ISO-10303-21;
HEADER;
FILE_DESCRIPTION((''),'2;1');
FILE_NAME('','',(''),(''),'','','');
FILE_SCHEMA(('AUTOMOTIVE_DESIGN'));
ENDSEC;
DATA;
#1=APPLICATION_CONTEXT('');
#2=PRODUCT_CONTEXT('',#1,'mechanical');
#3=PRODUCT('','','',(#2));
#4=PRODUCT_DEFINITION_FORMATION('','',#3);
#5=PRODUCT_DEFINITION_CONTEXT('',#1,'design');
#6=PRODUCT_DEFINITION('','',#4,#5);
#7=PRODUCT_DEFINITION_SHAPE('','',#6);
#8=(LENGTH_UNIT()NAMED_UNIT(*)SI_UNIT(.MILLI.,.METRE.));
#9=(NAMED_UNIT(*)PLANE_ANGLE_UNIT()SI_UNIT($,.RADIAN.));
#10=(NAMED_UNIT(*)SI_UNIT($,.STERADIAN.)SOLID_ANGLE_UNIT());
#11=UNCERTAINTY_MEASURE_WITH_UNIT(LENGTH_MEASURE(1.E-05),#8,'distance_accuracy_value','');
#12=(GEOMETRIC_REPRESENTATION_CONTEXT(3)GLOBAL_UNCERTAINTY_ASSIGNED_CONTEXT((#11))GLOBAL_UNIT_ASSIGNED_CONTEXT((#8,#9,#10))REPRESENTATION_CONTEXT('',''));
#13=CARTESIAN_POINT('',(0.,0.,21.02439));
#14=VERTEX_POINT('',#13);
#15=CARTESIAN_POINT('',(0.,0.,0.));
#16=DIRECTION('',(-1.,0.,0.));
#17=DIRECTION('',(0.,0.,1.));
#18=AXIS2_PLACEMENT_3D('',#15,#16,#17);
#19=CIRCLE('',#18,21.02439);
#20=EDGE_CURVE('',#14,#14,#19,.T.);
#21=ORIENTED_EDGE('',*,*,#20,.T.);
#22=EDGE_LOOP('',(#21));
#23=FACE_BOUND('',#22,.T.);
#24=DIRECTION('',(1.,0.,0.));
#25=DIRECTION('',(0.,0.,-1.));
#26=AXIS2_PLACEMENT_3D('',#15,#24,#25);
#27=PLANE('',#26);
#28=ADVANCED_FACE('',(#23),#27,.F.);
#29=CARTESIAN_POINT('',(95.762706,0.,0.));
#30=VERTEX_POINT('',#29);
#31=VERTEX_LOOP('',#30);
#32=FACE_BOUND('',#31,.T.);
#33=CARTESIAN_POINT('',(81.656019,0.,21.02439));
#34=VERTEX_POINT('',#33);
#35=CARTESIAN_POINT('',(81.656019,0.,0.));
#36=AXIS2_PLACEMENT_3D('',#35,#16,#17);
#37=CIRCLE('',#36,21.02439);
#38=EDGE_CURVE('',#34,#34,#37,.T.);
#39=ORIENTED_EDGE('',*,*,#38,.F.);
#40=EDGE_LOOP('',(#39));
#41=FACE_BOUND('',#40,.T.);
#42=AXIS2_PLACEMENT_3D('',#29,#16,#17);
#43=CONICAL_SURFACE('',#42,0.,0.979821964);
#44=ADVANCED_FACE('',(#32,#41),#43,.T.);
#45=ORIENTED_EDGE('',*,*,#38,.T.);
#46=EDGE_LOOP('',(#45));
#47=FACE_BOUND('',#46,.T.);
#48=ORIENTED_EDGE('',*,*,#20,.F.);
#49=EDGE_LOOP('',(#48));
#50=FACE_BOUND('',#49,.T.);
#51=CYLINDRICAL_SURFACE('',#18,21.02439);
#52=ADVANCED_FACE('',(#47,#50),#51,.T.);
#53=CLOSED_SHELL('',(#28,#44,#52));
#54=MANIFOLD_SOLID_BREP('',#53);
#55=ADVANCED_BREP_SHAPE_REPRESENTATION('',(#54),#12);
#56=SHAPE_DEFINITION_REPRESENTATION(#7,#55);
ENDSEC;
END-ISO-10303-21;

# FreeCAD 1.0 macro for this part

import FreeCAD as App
import Part
import Sketcher


def add_polygon(sketch, points):
    """Adds a closed chain of lines whose ends are joined by coincident constraints."""
    first, n = sketch.GeometryCount, len(points)
    for a, b in zip(points, points[1:] + points[:1]):
        sketch.addGeometry(Part.LineSegment(App.Vector(*a, 0), App.Vector(*b, 0)), False)
    for i in range(n):
        sketch.addConstraint(Sketcher.Constraint("Coincident", first + i, 2, first + (i + 1) % n, 1))

doc = App.newDocument("Part")
params = doc.addObject("Spreadsheet::Sheet", "Params")
for row, (alias, value) in enumerate([
    ("revolution_angle", "360 deg"),
], start=1):
    params.set(f"A{row}", alias)
    params.set(f"B{row}", "=" + value)
    params.setAlias(f"B{row}", alias)

body = doc.addObject("PartDesign::Body", "Body")

# Sketch on XZ plane
sketch1 = body.newObject("Sketcher::SketchObject", "Sketch")
sketch1.AttachmentSupport = (doc.getObject("XZ_Plane"), [""])
sketch1.MapMode = "FlatFace"
add_polygon(sketch1, [(0, -21), (0, 0), (96, 0), (82, -21)])  # lines 0-3
sketch1.addConstraint([
    Sketcher.Constraint("Vertical", 0),
    Sketcher.Constraint("Horizontal", 1),
    Sketcher.Constraint("Horizontal", 3),
    Sketcher.Constraint("Coincident", 0, 2, -1, 1),
    Sketcher.Constraint("DistanceX", 3, 2, 3, 1, 81.656019),
    Sketcher.Constraint("DistanceY", 0, 1, 0, 2, 21.02439),
    Sketcher.Constraint("DistanceX", 1, 1, 1, 2, 95.762706),
])
revolution = body.newObject("PartDesign::Revolution", "Revolution")
revolution.Profile = sketch1
revolution.ReferenceAxis = (sketch1, ["H_Axis"])
revolution.setExpression("Angle", "Params.revolution_angle")

doc.recompute()
